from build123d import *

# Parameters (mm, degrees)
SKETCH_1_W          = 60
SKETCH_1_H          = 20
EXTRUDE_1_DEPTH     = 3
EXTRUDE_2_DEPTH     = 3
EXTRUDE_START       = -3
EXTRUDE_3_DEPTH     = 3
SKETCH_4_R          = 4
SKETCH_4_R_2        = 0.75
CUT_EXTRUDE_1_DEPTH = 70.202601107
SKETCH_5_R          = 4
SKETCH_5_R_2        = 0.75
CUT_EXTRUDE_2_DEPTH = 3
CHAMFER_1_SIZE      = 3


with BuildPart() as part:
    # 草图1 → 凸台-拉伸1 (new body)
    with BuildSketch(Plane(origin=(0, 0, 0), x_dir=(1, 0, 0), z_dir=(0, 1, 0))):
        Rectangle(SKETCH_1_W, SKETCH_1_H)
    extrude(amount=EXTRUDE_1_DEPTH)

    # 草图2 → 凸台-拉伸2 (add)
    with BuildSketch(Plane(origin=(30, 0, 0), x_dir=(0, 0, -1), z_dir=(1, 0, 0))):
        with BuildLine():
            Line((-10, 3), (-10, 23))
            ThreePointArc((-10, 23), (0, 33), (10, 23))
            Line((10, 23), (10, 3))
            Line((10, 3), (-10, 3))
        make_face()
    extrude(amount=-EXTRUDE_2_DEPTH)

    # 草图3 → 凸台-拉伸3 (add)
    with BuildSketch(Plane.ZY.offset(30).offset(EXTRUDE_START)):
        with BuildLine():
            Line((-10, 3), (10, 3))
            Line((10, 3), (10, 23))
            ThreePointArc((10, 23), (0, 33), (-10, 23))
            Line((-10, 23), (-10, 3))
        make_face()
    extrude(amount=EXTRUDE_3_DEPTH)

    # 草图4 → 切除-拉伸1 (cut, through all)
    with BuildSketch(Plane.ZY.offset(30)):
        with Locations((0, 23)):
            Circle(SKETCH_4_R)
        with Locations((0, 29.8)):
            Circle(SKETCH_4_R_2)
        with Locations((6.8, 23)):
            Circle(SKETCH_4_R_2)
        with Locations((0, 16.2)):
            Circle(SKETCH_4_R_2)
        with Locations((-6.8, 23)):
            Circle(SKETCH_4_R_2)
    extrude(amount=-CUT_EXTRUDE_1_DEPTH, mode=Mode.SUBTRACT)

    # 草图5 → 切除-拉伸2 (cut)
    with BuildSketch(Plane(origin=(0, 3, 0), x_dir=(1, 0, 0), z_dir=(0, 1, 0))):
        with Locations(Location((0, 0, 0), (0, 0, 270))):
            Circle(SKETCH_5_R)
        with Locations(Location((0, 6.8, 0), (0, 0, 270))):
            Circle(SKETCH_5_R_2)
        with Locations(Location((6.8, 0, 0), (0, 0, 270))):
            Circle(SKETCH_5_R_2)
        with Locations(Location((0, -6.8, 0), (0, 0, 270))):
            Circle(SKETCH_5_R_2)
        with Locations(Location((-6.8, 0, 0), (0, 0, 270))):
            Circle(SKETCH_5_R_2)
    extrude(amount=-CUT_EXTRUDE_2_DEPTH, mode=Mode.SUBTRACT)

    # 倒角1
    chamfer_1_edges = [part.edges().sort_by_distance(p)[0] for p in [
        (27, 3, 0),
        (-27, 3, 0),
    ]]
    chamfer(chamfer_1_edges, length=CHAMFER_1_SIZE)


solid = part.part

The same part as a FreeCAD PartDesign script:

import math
import FreeCAD as App
import Part
import Sketcher
from FreeCAD import Vector


def edges_at(feature, points):
    """Names of the edges that pass closest to the given points."""
    edges = feature.Shape.Edges
    near = lambda p: min(range(len(edges)), key=lambda i: edges[i].distToShape(Part.Vertex(*p))[0])
    return sorted({f"Edge{near(p) + 1}" for p in points})

doc = App.newDocument("Part")
body = doc.addObject("PartDesign::Body", "Body")

sketch1 = body.newObject("Sketcher::SketchObject", "Sketch")
sketch1.AttachmentSupport = (doc.getObject("XZ_Plane"), [""])
sketch1.MapMode = "FlatFace"
sketch1.addGeometry([
    Part.LineSegment(Vector(-30, -10, 0), Vector(-30, 10, 0)),
    Part.LineSegment(Vector(-30, 10, 0), Vector(30, 10, 0)),
    Part.LineSegment(Vector(30, 10, 0), Vector(30, -10, 0)),
    Part.LineSegment(Vector(30, -10, 0), Vector(-30, -10, 0)),
], False)
sketch1.addConstraint([
    Sketcher.Constraint("Coincident", 0, 2, 1, 1),
    Sketcher.Constraint("Coincident", 1, 2, 2, 1),
    Sketcher.Constraint("Coincident", 2, 2, 3, 1),
    Sketcher.Constraint("Coincident", 3, 2, 0, 1),
    Sketcher.Constraint("Vertical", 0),
    Sketcher.Constraint("Horizontal", 1),
    Sketcher.Constraint("Vertical", 2),
    Sketcher.Constraint("Horizontal", 3),
    Sketcher.Constraint("Symmetric", 0, 2, 2, 2, -1, 1),
    Sketcher.Constraint("DistanceX", 1, 1, 1, 2, 60.0),
    Sketcher.Constraint("DistanceY", 0, 1, 0, 2, 20.0),
])
pad1 = body.newObject("PartDesign::Pad", "Pad")
pad1.Profile = sketch1
pad1.Length = 3
pad1.Reversed = True

sketch2 = body.newObject("Sketcher::SketchObject", "Sketch001")
sketch2.AttachmentSupport = (doc.getObject("YZ_Plane"), [""])
sketch2.MapMode = "FlatFace"
sketch2.AttachmentOffset = App.Placement(Vector(0, 0, 30), App.Rotation())
sketch2.addGeometry([
    Part.LineSegment(Vector(23, 10, 0), Vector(3, 10, 0)),
    Part.LineSegment(Vector(3, 10, 0), Vector(3, -10, 0)),
    Part.LineSegment(Vector(3, -10, 0), Vector(23, -10, 0)),
    Part.ArcOfCircle(Part.Circle(Vector(23, 0, 0), Vector(0, 0, 1), 10), math.radians(-90), math.radians(90)),
], False)
sketch2.addConstraint([
    Sketcher.Constraint("Coincident", 0, 2, 1, 1),
    Sketcher.Constraint("Coincident", 1, 2, 2, 1),
    Sketcher.Constraint("Tangent", 2, 2, 3, 1),
    Sketcher.Constraint("Tangent", 3, 2, 0, 1),
    Sketcher.Constraint("Horizontal", 0),
    Sketcher.Constraint("Vertical", 1),
    Sketcher.Constraint("Horizontal", 2),
    Sketcher.Constraint("PointOnObject", 3, 3, -1),
    Sketcher.Constraint("Equal", 2, 1),
    Sketcher.Constraint("Radius", 3, 10.0),
    Sketcher.Constraint("DistanceX", -1, 1, 3, 3, 23.0),
])
pad2 = body.newObject("PartDesign::Pad", "Pad001")
pad2.Profile = sketch2
pad2.Length = 3
pad2.Reversed = True

sketch3 = body.newObject("Sketcher::SketchObject", "Sketch002")
sketch3.AttachmentSupport = (doc.getObject("YZ_Plane"), [""])
sketch3.MapMode = "FlatFace"
sketch3.AttachmentOffset = App.Placement(Vector(0, 0, -27), App.Rotation())
sketch3.addGeometry([
    Part.LineSegment(Vector(3, -10, 0), Vector(3, 10, 0)),
    Part.LineSegment(Vector(3, 10, 0), Vector(23, 10, 0)),
    Part.ArcOfCircle(Part.Circle(Vector(23, 0, 0), Vector(0, 0, 1), 10), math.radians(-90), math.radians(90)),
    Part.LineSegment(Vector(23, -10, 0), Vector(3, -10, 0)),
], False)
sketch3.addConstraint([
    Sketcher.Constraint("Coincident", 0, 2, 1, 1),
    Sketcher.Constraint("Tangent", 1, 2, 2, 2),
    Sketcher.Constraint("Tangent", 2, 1, 3, 1),
    Sketcher.Constraint("Coincident", 3, 2, 0, 1),
    Sketcher.Constraint("Vertical", 0),
    Sketcher.Constraint("Horizontal", 1),
    Sketcher.Constraint("Horizontal", 3),
    Sketcher.Constraint("PointOnObject", 2, 3, -1),
    Sketcher.Constraint("Equal", 3, 0),
    Sketcher.Constraint("Radius", 2, 10.0),
    Sketcher.Constraint("DistanceX", -1, 1, 2, 3, 23.0),
])
pad3 = body.newObject("PartDesign::Pad", "Pad002")
pad3.Profile = sketch3
pad3.Length = 3
pad3.Reversed = True

sketch4 = body.newObject("Sketcher::SketchObject", "Sketch003")
sketch4.AttachmentSupport = (doc.getObject("YZ_Plane"), [""])
sketch4.MapMode = "FlatFace"
sketch4.AttachmentOffset = App.Placement(Vector(0, 0, -30), App.Rotation())
sketch4.addGeometry([
    Part.Circle(Vector(23, 0, 0), Vector(0, 0, 1), 4),
    Part.Circle(Vector(29.8, 0, 0), Vector(0, 0, 1), 0.8),
    Part.Circle(Vector(23, 6.8, 0), Vector(0, 0, 1), 0.8),
    Part.Circle(Vector(16.2, 0, 0), Vector(0, 0, 1), 0.8),
    Part.Circle(Vector(23, -6.8, 0), Vector(0, 0, 1), 0.8),
], False)
sketch4.addConstraint([
    Sketcher.Constraint("Equal", 1, 2),
    Sketcher.Constraint("Equal", 2, 3),
    Sketcher.Constraint("Equal", 3, 4),
    Sketcher.Constraint("Symmetric", 2, 3, 4, 3, -1),
    Sketcher.Constraint("PointOnObject", 0, 3, -1),
    Sketcher.Constraint("PointOnObject", 1, 3, -1),
    Sketcher.Constraint("PointOnObject", 3, 3, -1),
    Sketcher.Constraint("Vertical", 0, 3, 2, 3),
    Sketcher.Constraint("Diameter", 0, 8.0),
    Sketcher.Constraint("Diameter", 1, 1.5),
    Sketcher.Constraint("DistanceX", -1, 1, 0, 3, 23.0),
    Sketcher.Constraint("DistanceX", -1, 1, 1, 3, 29.8),
    Sketcher.Constraint("DistanceY", -1, 1, 2, 3, 6.8),
    Sketcher.Constraint("DistanceX", -1, 1, 3, 3, 16.2),
])
pocket1 = body.newObject("PartDesign::Pocket", "Pocket")
pocket1.Profile = sketch4
pocket1.Type = "ThroughAll"
pocket1.Reversed = True

sketch5 = body.newObject("Sketcher::SketchObject", "Sketch004")
sketch5.AttachmentSupport = (doc.getObject("XZ_Plane"), [""])
sketch5.MapMode = "FlatFace"
sketch5.AttachmentOffset = App.Placement(Vector(0, 0, -3), App.Rotation())
sketch5.addGeometry([
    Part.Circle(Vector(0, 0, 0), Vector(0, 0, 1), 4),
    Part.Circle(Vector(0, -6.8, 0), Vector(0, 0, 1), 0.8),
    Part.Circle(Vector(6.8, 0, 0), Vector(0, 0, 1), 0.8),
    Part.Circle(Vector(0, 6.8, 0), Vector(0, 0, 1), 0.8),
    Part.Circle(Vector(-6.8, 0, 0), Vector(0, 0, 1), 0.8),
], False)
sketch5.addConstraint([
    Sketcher.Constraint("Coincident", 0, 3, -1, 1),
    Sketcher.Constraint("Equal", 1, 2),
    Sketcher.Constraint("Equal", 2, 3),
    Sketcher.Constraint("Equal", 3, 4),
    Sketcher.Constraint("Symmetric", 1, 3, 3, 3, -1, 1),
    Sketcher.Constraint("Symmetric", 2, 3, 4, 3, -1, 1),
    Sketcher.Constraint("PointOnObject", 1, 3, -2),
    Sketcher.Constraint("PointOnObject", 2, 3, -1),
    Sketcher.Constraint("Diameter", 0, 8.0),
    Sketcher.Constraint("Diameter", 1, 1.5),
    Sketcher.Constraint("DistanceY", 1, 3, -1, 1, 6.8),
    Sketcher.Constraint("DistanceX", -1, 1, 2, 3, 6.8),
])
pocket2 = body.newObject("PartDesign::Pocket", "Pocket001")
pocket2.Profile = sketch5
pocket2.Length = 3
pocket2.Reversed = True
doc.recompute()

chamfer = body.newObject("PartDesign::Chamfer", "Chamfer")
chamfer.Base = (pocket2, edges_at(pocket2, [(27, 3, 0), (-27, 3, 0)]))
chamfer.Size = 3

doc.recompute()
